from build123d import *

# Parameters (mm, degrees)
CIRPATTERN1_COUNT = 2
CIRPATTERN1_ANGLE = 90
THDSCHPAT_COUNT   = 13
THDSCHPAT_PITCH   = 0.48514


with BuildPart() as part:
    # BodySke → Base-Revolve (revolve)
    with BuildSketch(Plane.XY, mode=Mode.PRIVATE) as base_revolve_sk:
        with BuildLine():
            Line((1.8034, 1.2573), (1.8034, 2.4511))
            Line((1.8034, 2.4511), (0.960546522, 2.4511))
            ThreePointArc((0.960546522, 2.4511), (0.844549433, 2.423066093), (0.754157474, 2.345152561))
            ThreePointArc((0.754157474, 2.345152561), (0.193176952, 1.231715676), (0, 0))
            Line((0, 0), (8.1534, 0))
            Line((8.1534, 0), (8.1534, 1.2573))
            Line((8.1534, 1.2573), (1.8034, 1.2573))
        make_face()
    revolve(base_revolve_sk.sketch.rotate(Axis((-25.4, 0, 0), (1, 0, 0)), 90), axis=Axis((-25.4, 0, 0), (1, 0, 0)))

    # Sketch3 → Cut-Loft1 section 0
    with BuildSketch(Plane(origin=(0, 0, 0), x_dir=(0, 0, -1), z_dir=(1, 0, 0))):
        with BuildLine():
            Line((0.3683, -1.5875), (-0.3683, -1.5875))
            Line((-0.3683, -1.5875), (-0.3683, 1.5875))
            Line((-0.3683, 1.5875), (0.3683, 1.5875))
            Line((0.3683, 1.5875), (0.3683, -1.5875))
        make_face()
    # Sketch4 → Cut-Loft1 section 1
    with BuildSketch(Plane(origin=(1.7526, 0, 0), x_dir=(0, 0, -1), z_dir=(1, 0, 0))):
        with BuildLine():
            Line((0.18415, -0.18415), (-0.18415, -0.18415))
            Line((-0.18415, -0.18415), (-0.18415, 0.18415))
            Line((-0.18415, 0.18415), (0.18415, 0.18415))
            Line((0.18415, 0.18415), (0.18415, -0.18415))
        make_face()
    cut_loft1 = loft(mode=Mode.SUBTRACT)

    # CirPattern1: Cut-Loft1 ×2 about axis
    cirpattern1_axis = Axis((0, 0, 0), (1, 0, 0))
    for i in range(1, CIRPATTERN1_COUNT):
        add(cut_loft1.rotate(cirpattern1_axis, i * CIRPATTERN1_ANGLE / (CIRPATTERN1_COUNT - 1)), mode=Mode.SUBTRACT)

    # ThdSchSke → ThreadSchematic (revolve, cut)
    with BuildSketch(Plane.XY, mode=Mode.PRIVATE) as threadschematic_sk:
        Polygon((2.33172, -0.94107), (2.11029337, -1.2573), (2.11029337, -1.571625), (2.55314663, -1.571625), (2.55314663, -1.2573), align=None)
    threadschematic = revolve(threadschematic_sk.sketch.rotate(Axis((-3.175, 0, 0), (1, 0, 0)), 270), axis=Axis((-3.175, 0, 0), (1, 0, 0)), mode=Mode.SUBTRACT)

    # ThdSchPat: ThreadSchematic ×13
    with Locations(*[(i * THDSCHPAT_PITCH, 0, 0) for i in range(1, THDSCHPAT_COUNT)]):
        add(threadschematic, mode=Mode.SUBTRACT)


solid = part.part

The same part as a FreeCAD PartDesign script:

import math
import FreeCAD as App
import Part
import Sketcher
Q = App.Units.Quantity

doc = App.newDocument("Part")
body = doc.addObject("PartDesign::Body", "Body")

# Sketch on XY plane
sketch1 = body.newObject("Sketcher::SketchObject", "Sketch")
sketch1.AttachmentSupport = (doc.getObject("XY_Plane"), [""])
sketch1.MapMode = "FlatFace"
sketch1.addGeometry(Part.LineSegment(App.Vector(1.8, 1.26, 0), App.Vector(1.8, 2.45, 0)), False)
sketch1.addGeometry(Part.LineSegment(App.Vector(1.8, 2.45, 0), App.Vector(0.96, 2.45, 0)), False)
sketch1.addGeometry(Part.ArcOfCircle(Part.Circle(App.Vector(0.96, 2.2, 0), App.Vector(0, 0, 1), 0.25), math.radians(90), math.radians(144)), False)
sketch1.addGeometry(Part.ArcOfCircle(Part.Circle(App.Vector(4.02, 0, 0), App.Vector(0, 0, 1), 4.02), math.radians(144), math.radians(180)), False)
sketch1.addGeometry(Part.LineSegment(App.Vector(0, 0, 0), App.Vector(8.15, 0, 0)), False)
sketch1.addGeometry(Part.LineSegment(App.Vector(8.15, 0, 0), App.Vector(8.15, 1.26, 0)), False)
sketch1.addGeometry(Part.LineSegment(App.Vector(8.15, 1.26, 0), App.Vector(1.8, 1.26, 0)), False)
sketch1.addConstraint(Sketcher.Constraint("Coincident", 0, 2, 1, 1))
sketch1.addConstraint(Sketcher.Constraint("Tangent", 1, 2, 2, 1))
sketch1.addConstraint(Sketcher.Constraint("Tangent", 2, 2, 3, 1))
sketch1.addConstraint(Sketcher.Constraint("Coincident", 3, 2, 4, 1))
sketch1.addConstraint(Sketcher.Constraint("Coincident", 4, 2, 5, 1))
sketch1.addConstraint(Sketcher.Constraint("Coincident", 5, 2, 6, 1))
sketch1.addConstraint(Sketcher.Constraint("Coincident", 6, 2, 0, 1))
sketch1.addConstraint(Sketcher.Constraint("Vertical", 0))
sketch1.addConstraint(Sketcher.Constraint("Horizontal", 1))
sketch1.addConstraint(Sketcher.Constraint("Horizontal", 4))
sketch1.addConstraint(Sketcher.Constraint("Vertical", 5))
sketch1.addConstraint(Sketcher.Constraint("Horizontal", 6))
sketch1.addConstraint(Sketcher.Constraint("Coincident", 3, 2, -1, 1))
sketch1.addConstraint(Sketcher.Constraint("PointOnObject", 3, 3, -1))
sketch1.addConstraint(Sketcher.Constraint("Radius", 2, Q("0.01 in")))
sketch1.addConstraint(Sketcher.Constraint("DistanceX", 6, 2, 6, 1, Q("0.25 in")))
sketch1.addConstraint(Sketcher.Constraint("Radius", 3, Q("0.1584 in")))
sketch1.addConstraint(Sketcher.Constraint("DistanceX", 4, 1, 4, 2, Q("0.321 in")))
sketch1.addConstraint(Sketcher.Constraint("DistanceY", 0, 1, 0, 2, Q("0.047 in")))
sketch1.addConstraint(Sketcher.Constraint("DistanceY", 5, 1, 5, 2, Q("0.0495 in")))
revolution = body.newObject("PartDesign::Revolution", "Revolution")
revolution.Profile = sketch1
revolution.ReferenceAxis = (sketch1, ["H_Axis"])
revolution.Angle = 360

# Sketch on YZ plane
sketch2 = body.newObject("Sketcher::SketchObject", "Sketch001")
sketch2.AttachmentSupport = (doc.getObject("YZ_Plane"), [""])
sketch2.MapMode = "FlatFace"
sketch2.addGeometry(Part.LineSegment(App.Vector(-1.6, 0.4, 0), App.Vector(-1.6, -0.4, 0)), False)
sketch2.addGeometry(Part.LineSegment(App.Vector(-1.6, -0.4, 0), App.Vector(1.6, -0.4, 0)), False)
sketch2.addGeometry(Part.LineSegment(App.Vector(1.6, -0.4, 0), App.Vector(1.6, 0.4, 0)), False)
sketch2.addGeometry(Part.LineSegment(App.Vector(1.6, 0.4, 0), App.Vector(-1.6, 0.4, 0)), False)
sketch2.addConstraint(Sketcher.Constraint("Coincident", 0, 2, 1, 1))
sketch2.addConstraint(Sketcher.Constraint("Coincident", 1, 2, 2, 1))
sketch2.addConstraint(Sketcher.Constraint("Coincident", 2, 2, 3, 1))
sketch2.addConstraint(Sketcher.Constraint("Coincident", 3, 2, 0, 1))
sketch2.addConstraint(Sketcher.Constraint("Vertical", 0))
sketch2.addConstraint(Sketcher.Constraint("Horizontal", 1))
sketch2.addConstraint(Sketcher.Constraint("Vertical", 2))
sketch2.addConstraint(Sketcher.Constraint("Horizontal", 3))
sketch2.addConstraint(Sketcher.Constraint("Symmetric", 0, 2, 2, 2, -1, 1))
sketch2.addConstraint(Sketcher.Constraint("DistanceX", 1, 1, 1, 2, Q("0.125 in")))
sketch2.addConstraint(Sketcher.Constraint("DistanceY", 0, 2, 0, 1, Q("0.029 in")))

# Sketch on YZ plane
sketch3 = body.newObject("Sketcher::SketchObject", "Sketch002")
sketch3.AttachmentSupport = (doc.getObject("YZ_Plane"), [""])
sketch3.MapMode = "FlatFace"
sketch3.AttachmentOffset = App.Placement(App.Vector(0, 0, 0.069 * 25.4), App.Rotation())
sketch3.addGeometry(Part.LineSegment(App.Vector(-0.18, 0.18, 0), App.Vector(-0.18, -0.18, 0)), False)
sketch3.addGeometry(Part.LineSegment(App.Vector(-0.18, -0.18, 0), App.Vector(0.18, -0.18, 0)), False)
sketch3.addGeometry(Part.LineSegment(App.Vector(0.18, -0.18, 0), App.Vector(0.18, 0.18, 0)), False)
sketch3.addGeometry(Part.LineSegment(App.Vector(0.18, 0.18, 0), App.Vector(-0.18, 0.18, 0)), False)
sketch3.addConstraint(Sketcher.Constraint("Coincident", 0, 2, 1, 1))
sketch3.addConstraint(Sketcher.Constraint("Coincident", 1, 2, 2, 1))
sketch3.addConstraint(Sketcher.Constraint("Coincident", 2, 2, 3, 1))
sketch3.addConstraint(Sketcher.Constraint("Coincident", 3, 2, 0, 1))
sketch3.addConstraint(Sketcher.Constraint("Vertical", 0))
sketch3.addConstraint(Sketcher.Constraint("Horizontal", 1))
sketch3.addConstraint(Sketcher.Constraint("Vertical", 2))
sketch3.addConstraint(Sketcher.Constraint("Horizontal", 3))
sketch3.addConstraint(Sketcher.Constraint("Symmetric", 0, 2, 2, 2, -1, 1))
sketch3.addConstraint(Sketcher.Constraint("Equal", 3, 0))
sketch3.addConstraint(Sketcher.Constraint("DistanceX", 1, 1, 1, 2, Q("0.0145 in")))

subtractiveloft = body.newObject("PartDesign::SubtractiveLoft", "SubtractiveLoft")
subtractiveloft.Profile = sketch2
subtractiveloft.Sections = [sketch3]
doc.recompute()

polarpattern = body.newObject("PartDesign::PolarPattern", "PolarPattern")
polarpattern.Originals = [subtractiveloft]
polarpattern.Axis = (doc.getObject("X_Axis"), [""])
polarpattern.Angle = 90
polarpattern.Occurrences = 2
body.Tip = polarpattern

# Sketch on XY plane
sketch4 = body.newObject("Sketcher::SketchObject", "Sketch003")
sketch4.AttachmentSupport = (doc.getObject("XY_Plane"), [""])
sketch4.MapMode = "FlatFace"
sketch4.addGeometry(Part.LineSegment(App.Vector(2.33, -0.94, 0), App.Vector(2.11, -1.26, 0)), False)
sketch4.addGeometry(Part.LineSegment(App.Vector(2.11, -1.26, 0), App.Vector(2.11, -1.57, 0)), False)
sketch4.addGeometry(Part.LineSegment(App.Vector(2.11, -1.57, 0), App.Vector(2.55, -1.57, 0)), False)
sketch4.addGeometry(Part.LineSegment(App.Vector(2.55, -1.57, 0), App.Vector(2.55, -1.26, 0)), False)
sketch4.addGeometry(Part.LineSegment(App.Vector(2.55, -1.26, 0), App.Vector(2.33, -0.94, 0)), False)
sketch4.addConstraint(Sketcher.Constraint("Coincident", 0, 2, 1, 1))
sketch4.addConstraint(Sketcher.Constraint("Coincident", 1, 2, 2, 1))
sketch4.addConstraint(Sketcher.Constraint("Coincident", 2, 2, 3, 1))
sketch4.addConstraint(Sketcher.Constraint("Coincident", 3, 2, 4, 1))
sketch4.addConstraint(Sketcher.Constraint("Coincident", 4, 2, 0, 1))
sketch4.addConstraint(Sketcher.Constraint("Vertical", 1))
sketch4.addConstraint(Sketcher.Constraint("Horizontal", 2))
sketch4.addConstraint(Sketcher.Constraint("Vertical", 3))
sketch4.addConstraint(Sketcher.Constraint("Horizontal", 0, 2, 3, 2))
sketch4.addConstraint(Sketcher.Constraint("Equal", 0, 4))
sketch4.addConstraint(Sketcher.Constraint("Angle", 0, Q("-125 deg")))
sketch4.addConstraint(Sketcher.Constraint("DistanceY", 0, 2, -1, 1, Q("0.0495 in")))
sketch4.addConstraint(Sketcher.Constraint("DistanceX", -1, 1, 4, 2, Q("0.0918 in")))
sketch4.addConstraint(Sketcher.Constraint("DistanceX", 2, 1, 2, 2, 0.442853))
sketch4.addConstraint(Sketcher.Constraint("DistanceY", 1, 2, 1, 1, 0.314325))
groove = body.newObject("PartDesign::Groove", "Groove")
groove.Profile = sketch4
groove.ReferenceAxis = (sketch4, ["H_Axis"])
groove.Angle = 360
doc.recompute()

linearpattern = body.newObject("PartDesign::LinearPattern", "LinearPattern")
linearpattern.Originals = [groove]
linearpattern.Direction = (doc.getObject("X_Axis"), [""])
linearpattern.Mode = "offset"
linearpattern.Offset = Q("0.0191 in")
linearpattern.Occurrences = 13
body.Tip = linearpattern

doc.recompute()
